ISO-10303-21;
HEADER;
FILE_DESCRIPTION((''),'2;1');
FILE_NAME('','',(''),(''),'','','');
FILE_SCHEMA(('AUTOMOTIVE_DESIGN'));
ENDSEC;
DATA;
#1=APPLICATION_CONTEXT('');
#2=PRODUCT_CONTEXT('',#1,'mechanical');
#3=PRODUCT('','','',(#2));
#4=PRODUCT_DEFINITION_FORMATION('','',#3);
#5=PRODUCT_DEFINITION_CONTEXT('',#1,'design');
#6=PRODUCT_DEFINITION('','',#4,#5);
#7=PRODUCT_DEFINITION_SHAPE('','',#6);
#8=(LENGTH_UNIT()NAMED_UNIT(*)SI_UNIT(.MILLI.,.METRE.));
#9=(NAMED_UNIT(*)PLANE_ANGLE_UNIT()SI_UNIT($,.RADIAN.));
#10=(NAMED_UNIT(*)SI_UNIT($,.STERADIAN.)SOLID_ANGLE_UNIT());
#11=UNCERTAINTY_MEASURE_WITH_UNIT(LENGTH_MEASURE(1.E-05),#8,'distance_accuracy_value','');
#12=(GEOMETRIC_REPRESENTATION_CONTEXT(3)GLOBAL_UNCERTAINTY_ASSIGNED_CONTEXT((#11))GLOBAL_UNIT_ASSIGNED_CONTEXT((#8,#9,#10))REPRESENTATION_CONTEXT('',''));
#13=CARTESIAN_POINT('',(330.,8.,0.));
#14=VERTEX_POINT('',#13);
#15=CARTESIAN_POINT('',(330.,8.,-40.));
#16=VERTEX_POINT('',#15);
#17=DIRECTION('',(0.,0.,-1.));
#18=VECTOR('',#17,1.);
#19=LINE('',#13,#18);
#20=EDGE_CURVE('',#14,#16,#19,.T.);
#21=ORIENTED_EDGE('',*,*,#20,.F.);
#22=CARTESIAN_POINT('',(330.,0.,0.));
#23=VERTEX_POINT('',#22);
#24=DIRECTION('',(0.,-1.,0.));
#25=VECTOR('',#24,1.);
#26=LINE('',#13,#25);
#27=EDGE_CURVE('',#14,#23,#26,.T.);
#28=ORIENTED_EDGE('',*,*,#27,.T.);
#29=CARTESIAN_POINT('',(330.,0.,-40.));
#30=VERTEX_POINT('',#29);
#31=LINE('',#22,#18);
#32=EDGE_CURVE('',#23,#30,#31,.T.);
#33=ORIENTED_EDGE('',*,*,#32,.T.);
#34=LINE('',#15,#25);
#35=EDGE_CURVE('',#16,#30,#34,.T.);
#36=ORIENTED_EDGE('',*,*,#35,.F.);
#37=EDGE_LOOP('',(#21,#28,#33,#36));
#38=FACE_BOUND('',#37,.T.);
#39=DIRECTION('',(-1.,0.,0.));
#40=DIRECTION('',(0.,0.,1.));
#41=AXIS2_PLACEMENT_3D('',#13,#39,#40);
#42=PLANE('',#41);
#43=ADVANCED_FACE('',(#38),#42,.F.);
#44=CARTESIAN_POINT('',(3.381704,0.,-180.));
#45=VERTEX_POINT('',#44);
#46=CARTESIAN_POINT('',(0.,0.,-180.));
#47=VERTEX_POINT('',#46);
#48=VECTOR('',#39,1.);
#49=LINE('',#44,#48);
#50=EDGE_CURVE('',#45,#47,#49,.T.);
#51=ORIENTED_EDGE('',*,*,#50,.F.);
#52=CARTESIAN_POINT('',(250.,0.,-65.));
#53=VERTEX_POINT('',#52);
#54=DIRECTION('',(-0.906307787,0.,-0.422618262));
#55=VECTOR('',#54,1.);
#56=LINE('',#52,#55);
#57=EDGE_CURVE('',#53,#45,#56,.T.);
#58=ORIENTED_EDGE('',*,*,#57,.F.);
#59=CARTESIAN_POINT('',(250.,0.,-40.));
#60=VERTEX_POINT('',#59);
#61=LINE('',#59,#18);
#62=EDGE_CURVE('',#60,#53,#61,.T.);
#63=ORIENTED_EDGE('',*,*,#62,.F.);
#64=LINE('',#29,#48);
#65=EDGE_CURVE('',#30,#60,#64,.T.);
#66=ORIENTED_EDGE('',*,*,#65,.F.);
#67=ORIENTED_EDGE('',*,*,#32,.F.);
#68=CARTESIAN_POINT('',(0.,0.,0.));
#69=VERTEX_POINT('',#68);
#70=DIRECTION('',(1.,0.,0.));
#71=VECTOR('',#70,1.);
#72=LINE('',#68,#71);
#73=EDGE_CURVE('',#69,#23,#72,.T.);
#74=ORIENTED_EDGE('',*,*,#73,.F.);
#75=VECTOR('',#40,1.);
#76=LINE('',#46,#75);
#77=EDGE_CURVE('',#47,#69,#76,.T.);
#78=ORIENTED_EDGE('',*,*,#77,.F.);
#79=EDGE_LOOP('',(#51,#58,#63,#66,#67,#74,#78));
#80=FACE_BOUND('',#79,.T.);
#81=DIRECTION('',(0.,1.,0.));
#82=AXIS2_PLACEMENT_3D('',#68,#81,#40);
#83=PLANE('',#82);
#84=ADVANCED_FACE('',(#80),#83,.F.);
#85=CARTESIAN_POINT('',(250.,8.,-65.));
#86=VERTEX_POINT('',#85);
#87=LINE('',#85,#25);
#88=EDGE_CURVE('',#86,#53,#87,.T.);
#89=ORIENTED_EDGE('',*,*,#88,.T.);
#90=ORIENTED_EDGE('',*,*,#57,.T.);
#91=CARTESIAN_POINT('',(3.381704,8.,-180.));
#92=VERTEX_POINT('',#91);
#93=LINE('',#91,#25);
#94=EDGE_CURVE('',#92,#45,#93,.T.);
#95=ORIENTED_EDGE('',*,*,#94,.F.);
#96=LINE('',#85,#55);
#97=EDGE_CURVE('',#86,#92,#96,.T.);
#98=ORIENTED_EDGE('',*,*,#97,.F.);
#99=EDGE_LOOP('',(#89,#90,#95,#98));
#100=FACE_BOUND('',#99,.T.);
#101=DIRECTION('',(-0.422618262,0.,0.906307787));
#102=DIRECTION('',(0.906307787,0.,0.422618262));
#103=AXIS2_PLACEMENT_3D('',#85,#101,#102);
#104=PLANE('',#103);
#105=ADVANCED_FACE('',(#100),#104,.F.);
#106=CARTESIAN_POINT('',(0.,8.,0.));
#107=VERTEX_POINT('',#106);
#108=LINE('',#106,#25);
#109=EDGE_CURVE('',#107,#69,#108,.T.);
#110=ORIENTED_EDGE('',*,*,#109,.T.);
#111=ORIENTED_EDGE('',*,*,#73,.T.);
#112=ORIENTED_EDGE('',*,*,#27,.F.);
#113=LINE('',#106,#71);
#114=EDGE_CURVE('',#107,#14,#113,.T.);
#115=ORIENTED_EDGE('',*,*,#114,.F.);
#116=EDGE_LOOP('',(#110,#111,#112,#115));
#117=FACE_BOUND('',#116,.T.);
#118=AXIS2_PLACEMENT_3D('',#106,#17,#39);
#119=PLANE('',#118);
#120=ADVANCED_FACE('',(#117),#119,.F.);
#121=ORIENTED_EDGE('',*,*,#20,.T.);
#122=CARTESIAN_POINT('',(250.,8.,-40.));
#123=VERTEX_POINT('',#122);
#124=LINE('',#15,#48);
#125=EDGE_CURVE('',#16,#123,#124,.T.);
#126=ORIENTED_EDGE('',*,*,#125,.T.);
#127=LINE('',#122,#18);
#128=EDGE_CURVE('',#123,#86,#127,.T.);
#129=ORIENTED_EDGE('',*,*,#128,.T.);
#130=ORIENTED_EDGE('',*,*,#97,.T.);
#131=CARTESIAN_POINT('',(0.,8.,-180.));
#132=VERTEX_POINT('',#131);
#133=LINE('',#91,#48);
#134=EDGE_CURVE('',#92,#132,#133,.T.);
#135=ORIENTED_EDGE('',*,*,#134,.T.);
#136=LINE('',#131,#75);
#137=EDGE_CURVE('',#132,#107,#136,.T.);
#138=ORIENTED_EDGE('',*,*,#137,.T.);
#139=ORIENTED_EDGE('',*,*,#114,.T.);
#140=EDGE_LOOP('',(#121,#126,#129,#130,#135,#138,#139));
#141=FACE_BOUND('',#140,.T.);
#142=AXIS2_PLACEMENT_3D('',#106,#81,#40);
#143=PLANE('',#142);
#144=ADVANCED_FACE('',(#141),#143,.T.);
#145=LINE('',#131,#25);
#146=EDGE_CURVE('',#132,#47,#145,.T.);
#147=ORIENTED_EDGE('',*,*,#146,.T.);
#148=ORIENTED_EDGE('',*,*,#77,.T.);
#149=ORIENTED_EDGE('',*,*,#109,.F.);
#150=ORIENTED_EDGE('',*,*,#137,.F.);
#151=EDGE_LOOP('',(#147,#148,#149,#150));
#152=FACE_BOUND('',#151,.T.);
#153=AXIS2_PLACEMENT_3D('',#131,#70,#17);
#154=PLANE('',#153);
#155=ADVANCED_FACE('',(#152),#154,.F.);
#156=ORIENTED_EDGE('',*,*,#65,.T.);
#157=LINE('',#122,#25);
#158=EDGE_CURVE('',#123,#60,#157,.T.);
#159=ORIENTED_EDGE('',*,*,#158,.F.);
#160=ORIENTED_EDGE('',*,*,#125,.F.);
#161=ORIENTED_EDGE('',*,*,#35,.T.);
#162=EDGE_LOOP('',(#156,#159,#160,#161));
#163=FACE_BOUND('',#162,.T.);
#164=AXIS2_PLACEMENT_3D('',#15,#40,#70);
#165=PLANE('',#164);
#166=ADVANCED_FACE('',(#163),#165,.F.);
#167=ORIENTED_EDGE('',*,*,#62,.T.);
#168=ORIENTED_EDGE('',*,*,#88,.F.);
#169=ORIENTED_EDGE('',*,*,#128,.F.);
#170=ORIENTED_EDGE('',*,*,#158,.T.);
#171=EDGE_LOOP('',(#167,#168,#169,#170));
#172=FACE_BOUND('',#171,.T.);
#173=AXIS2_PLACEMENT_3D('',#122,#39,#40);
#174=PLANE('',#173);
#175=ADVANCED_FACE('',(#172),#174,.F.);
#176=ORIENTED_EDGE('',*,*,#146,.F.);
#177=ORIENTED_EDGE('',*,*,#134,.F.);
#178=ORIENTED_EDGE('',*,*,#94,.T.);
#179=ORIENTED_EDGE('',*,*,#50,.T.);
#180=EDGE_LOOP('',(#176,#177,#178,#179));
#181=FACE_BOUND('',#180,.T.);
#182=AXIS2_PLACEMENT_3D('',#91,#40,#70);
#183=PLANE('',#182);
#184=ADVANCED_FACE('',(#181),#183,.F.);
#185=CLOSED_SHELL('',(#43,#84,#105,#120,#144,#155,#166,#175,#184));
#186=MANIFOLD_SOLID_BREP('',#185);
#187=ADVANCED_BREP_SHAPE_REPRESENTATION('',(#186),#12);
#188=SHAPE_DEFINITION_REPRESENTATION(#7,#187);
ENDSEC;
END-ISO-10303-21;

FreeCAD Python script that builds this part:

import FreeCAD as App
import Part
import Sketcher
from FreeCAD import Vector
Q = App.Units.Quantity

doc = App.newDocument("Part")
body = doc.addObject("PartDesign::Body", "Body")

# Sketch on XZ plane
sketch1 = body.newObject("Sketcher::SketchObject", "Sketch")
sketch1.AttachmentSupport = (doc.getObject("XZ_Plane"), [""])
sketch1.MapMode = "FlatFace"
sketch1.addGeometry([
    Part.LineSegment(Vector(0, 0, 0), Vector(330, 0, 0)),  # 0
    Part.LineSegment(Vector(330, 0, 0), Vector(330, -40, 0)),  # 1
    Part.LineSegment(Vector(330, -40, 0), Vector(250, -40, 0)),  # 2
    Part.LineSegment(Vector(250, -40, 0), Vector(250, -65, 0)),  # 3
    Part.LineSegment(Vector(250, -65, 0), Vector(3.4, -180, 0)),  # 4
    Part.LineSegment(Vector(3.4, -180, 0), Vector(0, -180, 0)),  # 5
    Part.LineSegment(Vector(0, -180, 0), Vector(0, 0, 0)),  # 6
], False)
sketch1.addConstraint([
    Sketcher.Constraint("Coincident", 0, 2, 1, 1),
    Sketcher.Constraint("Coincident", 1, 2, 2, 1),
    Sketcher.Constraint("Coincident", 2, 2, 3, 1),
    Sketcher.Constraint("Coincident", 3, 2, 4, 1),
    Sketcher.Constraint("Coincident", 4, 2, 5, 1),
    Sketcher.Constraint("Coincident", 5, 2, 6, 1),
    Sketcher.Constraint("Coincident", 6, 2, 0, 1),
    Sketcher.Constraint("Horizontal", 0),
    Sketcher.Constraint("Vertical", 1),
    Sketcher.Constraint("Horizontal", 2),
    Sketcher.Constraint("Vertical", 3),
    Sketcher.Constraint("Horizontal", 5),
    Sketcher.Constraint("Vertical", 6),
    Sketcher.Constraint("Coincident", 6, 2, -1, 1),
    Sketcher.Constraint("DistanceX", 0, 1, 0, 2, Q("330 mm")),
    Sketcher.Constraint("DistanceX", 2, 2, 2, 1, Q("80 mm")),
    Sketcher.Constraint("DistanceY", 1, 2, 1, 1, Q("40 mm")),
    Sketcher.Constraint("DistanceY", 3, 2, 3, 1, Q("25 mm")),
    Sketcher.Constraint("DistanceY", 6, 1, 6, 2, Q("180 mm")),
    Sketcher.Constraint("Angle", 4, Q("-155 deg")),
])
pad1 = body.newObject("PartDesign::Pad", "Pad")
pad1.Profile = sketch1
pad1.Length = 8
pad1.Reversed = True

doc.recompute()
